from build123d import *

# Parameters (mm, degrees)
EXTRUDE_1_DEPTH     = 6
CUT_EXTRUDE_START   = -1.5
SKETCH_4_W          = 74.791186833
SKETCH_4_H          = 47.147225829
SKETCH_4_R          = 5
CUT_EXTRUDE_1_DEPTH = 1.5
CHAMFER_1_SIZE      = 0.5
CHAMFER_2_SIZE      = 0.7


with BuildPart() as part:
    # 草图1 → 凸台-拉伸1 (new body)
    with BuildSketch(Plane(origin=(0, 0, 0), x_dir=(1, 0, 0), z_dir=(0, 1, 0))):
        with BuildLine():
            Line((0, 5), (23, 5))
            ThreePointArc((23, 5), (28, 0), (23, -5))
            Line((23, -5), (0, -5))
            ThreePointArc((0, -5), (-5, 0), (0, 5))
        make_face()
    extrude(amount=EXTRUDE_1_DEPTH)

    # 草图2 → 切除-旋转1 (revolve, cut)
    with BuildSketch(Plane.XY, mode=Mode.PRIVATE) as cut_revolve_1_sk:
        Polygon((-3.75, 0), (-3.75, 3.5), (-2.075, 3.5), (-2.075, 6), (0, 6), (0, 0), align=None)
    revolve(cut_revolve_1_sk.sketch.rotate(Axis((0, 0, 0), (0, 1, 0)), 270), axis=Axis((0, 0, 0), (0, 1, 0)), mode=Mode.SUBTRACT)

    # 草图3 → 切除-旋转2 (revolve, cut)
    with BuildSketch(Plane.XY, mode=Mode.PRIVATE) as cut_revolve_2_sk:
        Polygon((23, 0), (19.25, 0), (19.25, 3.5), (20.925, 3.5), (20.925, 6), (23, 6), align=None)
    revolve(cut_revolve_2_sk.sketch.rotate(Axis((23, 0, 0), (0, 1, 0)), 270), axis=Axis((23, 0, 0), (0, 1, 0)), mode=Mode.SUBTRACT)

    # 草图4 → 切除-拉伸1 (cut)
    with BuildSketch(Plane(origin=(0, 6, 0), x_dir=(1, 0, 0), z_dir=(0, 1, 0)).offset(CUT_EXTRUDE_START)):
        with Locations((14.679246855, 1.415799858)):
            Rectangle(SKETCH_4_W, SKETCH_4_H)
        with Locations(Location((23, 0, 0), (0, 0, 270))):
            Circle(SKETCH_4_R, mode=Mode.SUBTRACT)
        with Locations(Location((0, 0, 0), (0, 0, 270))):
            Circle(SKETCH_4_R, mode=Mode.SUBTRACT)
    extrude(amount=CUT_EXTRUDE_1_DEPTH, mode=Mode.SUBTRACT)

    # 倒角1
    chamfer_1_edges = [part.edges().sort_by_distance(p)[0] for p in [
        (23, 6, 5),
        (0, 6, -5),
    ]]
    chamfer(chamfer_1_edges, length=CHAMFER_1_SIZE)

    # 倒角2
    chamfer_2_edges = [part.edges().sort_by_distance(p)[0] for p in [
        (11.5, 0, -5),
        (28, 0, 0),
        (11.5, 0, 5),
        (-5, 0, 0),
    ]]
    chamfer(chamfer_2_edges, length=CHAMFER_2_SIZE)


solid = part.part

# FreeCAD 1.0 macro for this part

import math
import FreeCAD as App
import Part
import Sketcher
from FreeCAD import Vector
Q = App.Units.Quantity


def edges_at(feature, points):
    """Names of the edges that pass closest to the given points."""
    edges = feature.Shape.Edges
    near = lambda p: min(range(len(edges)), key=lambda i: edges[i].distToShape(Part.Vertex(*p))[0])
    return sorted({f"Edge{near(p) + 1}" for p in points})

doc = App.newDocument("Part")
body = doc.addObject("PartDesign::Body", "Body")

sketch1 = body.newObject("Sketcher::SketchObject", "Sketch")
sketch1.AttachmentSupport = (doc.getObject("XZ_Plane"), [""])
sketch1.MapMode = "FlatFace"
sketch1.addGeometry([
    Part.LineSegment(Vector(23, -5, 0), Vector(0, -5, 0)),
    Part.ArcOfCircle(Part.Circle(Vector(0, 0, 0), Vector(0, 0, 1), 5), math.radians(90), math.radians(270)),
    Part.LineSegment(Vector(0, 5, 0), Vector(23, 5, 0)),
    Part.ArcOfCircle(Part.Circle(Vector(23, 0, 0), Vector(0, 0, 1), 5), math.radians(-90), math.radians(90)),
], False)
sketch1.addConstraint([
    Sketcher.Constraint("Tangent", 0, 2, 1, 2),
    Sketcher.Constraint("Tangent", 1, 1, 2, 1),
    Sketcher.Constraint("Tangent", 2, 2, 3, 2),
    Sketcher.Constraint("Tangent", 3, 1, 0, 1),
    Sketcher.Constraint("Horizontal", 0),
    Sketcher.Constraint("Horizontal", 2),
    Sketcher.Constraint("Coincident", 1, 3, -1, 1),
    Sketcher.Constraint("Radius", 1, Q("5 mm")),
    Sketcher.Constraint("DistanceX", 0, 2, 0, 1, Q("23 mm")),
])
pad1 = body.newObject("PartDesign::Pad", "Pad")
pad1.Profile = sketch1
pad1.Length = 6
pad1.Reversed = True

sketch2 = body.newObject("Sketcher::SketchObject", "Sketch001")
sketch2.AttachmentSupport = (doc.getObject("XY_Plane"), [""])
sketch2.MapMode = "FlatFace"
sketch2.addGeometry([
    Part.LineSegment(Vector(-3.8, 3.5, 0), Vector(-3.8, 0, 0)),
    Part.LineSegment(Vector(-3.8, 0, 0), Vector(0, 0, 0)),
    Part.LineSegment(Vector(0, 0, 0), Vector(0, 6, 0)),
    Part.LineSegment(Vector(0, 6, 0), Vector(-2.1, 6, 0)),
    Part.LineSegment(Vector(-2.1, 6, 0), Vector(-2.1, 3.5, 0)),
    Part.LineSegment(Vector(-2.1, 3.5, 0), Vector(-3.8, 3.5, 0)),
], False)
sketch2.addConstraint([
    Sketcher.Constraint("Coincident", 0, 2, 1, 1),
    Sketcher.Constraint("Coincident", 1, 2, 2, 1),
    Sketcher.Constraint("Coincident", 2, 2, 3, 1),
    Sketcher.Constraint("Coincident", 3, 2, 4, 1),
    Sketcher.Constraint("Coincident", 4, 2, 5, 1),
    Sketcher.Constraint("Coincident", 5, 2, 0, 1),
    Sketcher.Constraint("Vertical", 0),
    Sketcher.Constraint("Horizontal", 1),
    Sketcher.Constraint("Vertical", 2),
    Sketcher.Constraint("Horizontal", 3),
    Sketcher.Constraint("Vertical", 4),
    Sketcher.Constraint("Horizontal", 5),
    Sketcher.Constraint("Coincident", 1, 2, -1, 1),
    Sketcher.Constraint("DistanceY", 2, 1, 2, 2, Q("6 mm")),
    Sketcher.Constraint("DistanceY", 0, 2, 0, 1, Q("3.5 mm")),
    Sketcher.Constraint("DistanceX", 1, 1, 1, 2, Q("3.75 mm")),
    Sketcher.Constraint("DistanceX", 3, 2, 3, 1, Q("2.075 mm")),
])
groove = body.newObject("PartDesign::Groove", "Groove")
groove.Profile = sketch2
groove.ReferenceAxis = (sketch2, ["V_Axis"])
groove.Angle = 360

sketch3 = body.newObject("Sketcher::SketchObject", "Sketch002")
sketch3.AttachmentSupport = (doc.getObject("XY_Plane"), [""])
sketch3.MapMode = "FlatFace"
sketch3.addGeometry([
    Part.LineSegment(Vector(19.2, 0, 0), Vector(23, 0, 0)),
    Part.LineSegment(Vector(23, 0, 0), Vector(23, 6, 0)),
    Part.LineSegment(Vector(23, 6, 0), Vector(20.9, 6, 0)),
    Part.LineSegment(Vector(20.9, 6, 0), Vector(20.9, 3.5, 0)),
    Part.LineSegment(Vector(20.9, 3.5, 0), Vector(19.2, 3.5, 0)),
    Part.LineSegment(Vector(19.2, 3.5, 0), Vector(19.2, 0, 0)),
], False)
sketch3.addGeometry(Part.LineSegment(Vector(23, 0, 0), Vector(23, 6, 0)), True)
sketch3.addConstraint([
    Sketcher.Constraint("Coincident", 0, 2, 1, 1),
    Sketcher.Constraint("Coincident", 1, 2, 2, 1),
    Sketcher.Constraint("Coincident", 2, 2, 3, 1),
    Sketcher.Constraint("Coincident", 3, 2, 4, 1),
    Sketcher.Constraint("Coincident", 4, 2, 5, 1),
    Sketcher.Constraint("Coincident", 5, 2, 0, 1),
    Sketcher.Constraint("Horizontal", 0),
    Sketcher.Constraint("Vertical", 1),
    Sketcher.Constraint("Horizontal", 2),
    Sketcher.Constraint("Vertical", 3),
    Sketcher.Constraint("Horizontal", 4),
    Sketcher.Constraint("Vertical", 5),
    Sketcher.Constraint("Vertical", 6),
    Sketcher.Constraint("Coincident", 6, 1, 0, 2),
    Sketcher.Constraint("PointOnObject", 0, 2, -1),
    Sketcher.Constraint("Horizontal", 2, 2, 6, 2),
    Sketcher.Constraint("DistanceY", 1, 1, 1, 2, Q("6 mm")),
    Sketcher.Constraint("DistanceY", 3, 2, 3, 1, Q("2.5 mm")),
    Sketcher.Constraint("DistanceX", -1, 1, 0, 2, Q("23 mm")),
    Sketcher.Constraint("DistanceX", 0, 1, 0, 2, Q("3.75 mm")),
    Sketcher.Constraint("DistanceX", 2, 2, 2, 1, Q("2.075 mm")),
])
groove2 = body.newObject("PartDesign::Groove", "Groove001")
groove2.Profile = sketch3
groove2.ReferenceAxis = (sketch3, ["Axis0"])
groove2.Angle = 360

sketch4 = body.newObject("Sketcher::SketchObject", "Sketch003")
sketch4.AttachmentSupport = (doc.getObject("XZ_Plane"), [""])
sketch4.MapMode = "FlatFace"
sketch4.AttachmentOffset = App.Placement(Vector(0, 0, -4.5), App.Rotation())
sketch4.addGeometry([
    Part.LineSegment(Vector(-23, -25, 0), Vector(-23, 22, 0)),
    Part.LineSegment(Vector(-23, 22, 0), Vector(52, 22, 0)),
    Part.LineSegment(Vector(52, 22, 0), Vector(52, -25, 0)),
    Part.LineSegment(Vector(52, -25, 0), Vector(-23, -25, 0)),
    Part.Circle(Vector(0, 0, 0), Vector(0, 0, 1), 5),
    Part.Circle(Vector(23, 0, 0), Vector(0, 0, 1), 5),
], False)
sketch4.addConstraint([
    Sketcher.Constraint("Coincident", 0, 2, 1, 1),
    Sketcher.Constraint("Coincident", 1, 2, 2, 1),
    Sketcher.Constraint("Coincident", 2, 2, 3, 1),
    Sketcher.Constraint("Coincident", 3, 2, 0, 1),
    Sketcher.Constraint("Vertical", 0),
    Sketcher.Constraint("Horizontal", 1),
    Sketcher.Constraint("Vertical", 2),
    Sketcher.Constraint("Horizontal", 3),
    Sketcher.Constraint("Coincident", 4, 3, -1, 1),
    Sketcher.Constraint("Equal", 4, 5),
    Sketcher.Constraint("PointOnObject", 5, 3, -1),
    Sketcher.Constraint("Diameter", 4, Q("10 mm")),
    Sketcher.Constraint("DistanceX", -1, 1, 5, 3, Q("23 mm")),
    Sketcher.Constraint("DistanceX", 1, 1, 1, 2, Q("74.791187 mm")),
    Sketcher.Constraint("DistanceY", 0, 1, 0, 2, Q("47.147226 mm")),
    Sketcher.Constraint("DistanceX", -1, 1, 1, 2, Q("52.07484 mm")),
    Sketcher.Constraint("DistanceY", -1, 1, 0, 2, Q("22.157813 mm")),
])
pocket1 = body.newObject("PartDesign::Pocket", "Pocket")
pocket1.Profile = sketch4
pocket1.Length = 1.5
doc.recompute()

chamfer = body.newObject("PartDesign::Chamfer", "Chamfer")
chamfer.Base = (pocket1, edges_at(pocket1, [(23, 6, 5), (0, 6, -5)]))
chamfer.Size = 0.5
doc.recompute()

chamfer2 = body.newObject("PartDesign::Chamfer", "Chamfer001")
chamfer2.Base = (chamfer, edges_at(chamfer, [
    (11.5, 0, -5),
    (28, 0, 0),
    (11.5, 0, 5),
    (-5, 0, 0),
]))
chamfer2.Size = 0.7

doc.recompute()
